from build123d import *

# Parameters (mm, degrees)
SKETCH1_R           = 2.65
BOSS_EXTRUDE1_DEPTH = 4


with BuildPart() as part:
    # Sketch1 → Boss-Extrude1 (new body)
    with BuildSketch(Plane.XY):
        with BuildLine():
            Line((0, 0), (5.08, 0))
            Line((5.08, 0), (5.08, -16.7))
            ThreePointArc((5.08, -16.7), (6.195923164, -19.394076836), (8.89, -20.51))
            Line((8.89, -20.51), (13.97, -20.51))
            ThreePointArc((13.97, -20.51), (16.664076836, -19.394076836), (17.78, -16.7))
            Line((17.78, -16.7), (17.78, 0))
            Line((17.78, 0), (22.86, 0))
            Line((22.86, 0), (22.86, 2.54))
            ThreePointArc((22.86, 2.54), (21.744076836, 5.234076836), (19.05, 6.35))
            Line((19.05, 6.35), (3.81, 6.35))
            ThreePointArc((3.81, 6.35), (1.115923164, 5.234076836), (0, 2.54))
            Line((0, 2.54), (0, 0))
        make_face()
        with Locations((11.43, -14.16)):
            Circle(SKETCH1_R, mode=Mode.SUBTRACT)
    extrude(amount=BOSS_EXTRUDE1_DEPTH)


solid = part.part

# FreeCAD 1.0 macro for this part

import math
import FreeCAD as App
import Part
import Sketcher
from FreeCAD import Vector
Q = App.Units.Quantity

doc = App.newDocument("Part")
body = doc.addObject("PartDesign::Body", "Body")

# Sketch on XY plane
sketch1 = body.newObject("Sketcher::SketchObject", "Sketch")
sketch1.AttachmentSupport = (doc.getObject("XY_Plane"), [""])
sketch1.MapMode = "FlatFace"
sketch1.addGeometry([
    Part.LineSegment(Vector(0, 0, 0), Vector(5.08, 0, 0)),  # 0
    Part.LineSegment(Vector(5.08, 0, 0), Vector(5.08, -16.7, 0)),  # 1
    Part.ArcOfCircle(Part.Circle(Vector(8.89, -16.7, 0), Vector(0, 0, 1), 3.81), math.radians(-180), math.radians(-90)),  # 2
    Part.LineSegment(Vector(8.89, -20.51, 0), Vector(13.97, -20.51, 0)),  # 3
    Part.ArcOfCircle(Part.Circle(Vector(13.97, -16.7, 0), Vector(0, 0, 1), 3.81), math.radians(-90), math.radians(0)),  # 4
    Part.LineSegment(Vector(17.78, -16.7, 0), Vector(17.78, 0, 0)),  # 5
    Part.LineSegment(Vector(17.78, 0, 0), Vector(22.86, 0, 0)),  # 6
    Part.LineSegment(Vector(22.86, 0, 0), Vector(22.86, 2.54, 0)),  # 7
    Part.ArcOfCircle(Part.Circle(Vector(19.05, 2.54, 0), Vector(0, 0, 1), 3.81), math.radians(0), math.radians(90)),  # 8
    Part.LineSegment(Vector(19.05, 6.35, 0), Vector(3.81, 6.35, 0)),  # 9
    Part.ArcOfCircle(Part.Circle(Vector(3.81, 2.54, 0), Vector(0, 0, 1), 3.81), math.radians(90), math.radians(180)),  # 10
    Part.LineSegment(Vector(0, 2.54, 0), Vector(0, 0, 0)),  # 11
    Part.Circle(Vector(11.43, -14.16, 0), Vector(0, 0, 1), 2.65),  # 12
], False)
sketch1.addConstraint([
    Sketcher.Constraint("Coincident", 0, 2, 1, 1),
    Sketcher.Constraint("Tangent", 1, 2, 2, 1),
    Sketcher.Constraint("Tangent", 2, 2, 3, 1),
    Sketcher.Constraint("Tangent", 3, 2, 4, 1),
    Sketcher.Constraint("Tangent", 4, 2, 5, 1),
    Sketcher.Constraint("Coincident", 5, 2, 6, 1),
    Sketcher.Constraint("Coincident", 6, 2, 7, 1),
    Sketcher.Constraint("Tangent", 7, 2, 8, 1),
    Sketcher.Constraint("Tangent", 8, 2, 9, 1),
    Sketcher.Constraint("Tangent", 9, 2, 10, 1),
    Sketcher.Constraint("Tangent", 10, 2, 11, 1),
    Sketcher.Constraint("Coincident", 11, 2, 0, 1),
    Sketcher.Constraint("Horizontal", 0),
    Sketcher.Constraint("Vertical", 1),
    Sketcher.Constraint("Horizontal", 3),
    Sketcher.Constraint("Vertical", 5),
    Sketcher.Constraint("Horizontal", 6),
    Sketcher.Constraint("Vertical", 7),
    Sketcher.Constraint("Horizontal", 9),
    Sketcher.Constraint("Vertical", 11),
    Sketcher.Constraint("Coincident", 11, 2, -1, 1),
    Sketcher.Constraint("Equal", 2, 4),
    Sketcher.Constraint("Equal", 4, 8),
    Sketcher.Constraint("Equal", 8, 10),
    Sketcher.Constraint("PointOnObject", 5, 2, -1),
    Sketcher.Constraint("Equal", 0, 3),
    Sketcher.Constraint("Equal", 3, 6),
    Sketcher.Constraint("Radius", 2, Q("0.15 in")),
    Sketcher.Constraint("DistanceX", 0, 1, 0, 2, Q("0.2 in")),
    Sketcher.Constraint("DistanceY", 7, 1, 7, 2, Q("0.1 in")),
    Sketcher.Constraint("DistanceX", 2, 3, 12, 3, Q("0.1 in")),
    Sketcher.Constraint("DistanceY", 2, 3, 12, 3, Q("0.1 in")),
    Sketcher.Constraint("Diameter", 12, Q("5.3 mm")),
    Sketcher.Constraint("DistanceY", 1, 2, 1, 1, Q("16.7 mm")),
])
pad1 = body.newObject("PartDesign::Pad", "Pad")
pad1.Profile = sketch1
pad1.Length = 4

doc.recompute()
